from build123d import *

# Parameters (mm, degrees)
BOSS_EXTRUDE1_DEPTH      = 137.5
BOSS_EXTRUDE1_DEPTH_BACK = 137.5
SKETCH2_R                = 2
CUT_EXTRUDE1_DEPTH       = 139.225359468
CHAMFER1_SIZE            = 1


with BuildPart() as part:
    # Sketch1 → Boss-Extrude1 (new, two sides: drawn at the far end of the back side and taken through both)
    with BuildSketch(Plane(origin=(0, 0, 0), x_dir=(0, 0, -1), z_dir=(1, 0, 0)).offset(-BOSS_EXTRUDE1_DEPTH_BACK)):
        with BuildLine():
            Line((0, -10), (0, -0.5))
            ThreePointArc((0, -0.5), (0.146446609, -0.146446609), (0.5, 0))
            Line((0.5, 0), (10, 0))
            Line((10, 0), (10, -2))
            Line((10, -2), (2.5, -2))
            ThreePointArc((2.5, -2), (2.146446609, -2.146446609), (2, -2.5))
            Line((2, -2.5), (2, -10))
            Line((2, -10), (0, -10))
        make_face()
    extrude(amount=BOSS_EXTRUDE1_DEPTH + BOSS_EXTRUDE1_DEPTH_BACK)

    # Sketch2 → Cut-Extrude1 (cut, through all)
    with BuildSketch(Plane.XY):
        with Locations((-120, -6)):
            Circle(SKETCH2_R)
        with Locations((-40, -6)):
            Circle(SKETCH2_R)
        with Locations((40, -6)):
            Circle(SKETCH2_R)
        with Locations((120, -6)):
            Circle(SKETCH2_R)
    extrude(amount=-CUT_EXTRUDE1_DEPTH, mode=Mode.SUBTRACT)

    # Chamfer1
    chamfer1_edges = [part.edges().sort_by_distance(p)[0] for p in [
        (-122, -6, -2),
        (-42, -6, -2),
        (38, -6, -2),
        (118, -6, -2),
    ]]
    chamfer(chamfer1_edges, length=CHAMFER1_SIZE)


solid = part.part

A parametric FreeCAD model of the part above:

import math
import FreeCAD as App
import Part
import Sketcher

V = App.Vector


def edges_at(feature, points):
    """Names of the edges that pass closest to the given points."""
    edges = feature.Shape.Edges
    near = lambda p: min(range(len(edges)), key=lambda i: edges[i].distToShape(Part.Vertex(*p))[0])
    return sorted({f"Edge{near(p) + 1}" for p in points})

doc = App.newDocument("Part")
body = doc.addObject("PartDesign::Body", "Body")

# Sketch on YZ plane
sketch1 = doc.addObject("Sketcher::SketchObject", "Sketch")
body.addObject(sketch1)
sketch1.AttachmentSupport = (doc.YZ_Plane, [""])
sketch1.MapMode = "FlatFace"
sketch1.addGeometry(Part.LineSegment(V(-0.5, 0, 0), V(-10, 0, 0)), False)
sketch1.addGeometry(Part.LineSegment(V(-10, 0, 0), V(-10, -2, 0)), False)
sketch1.addGeometry(Part.LineSegment(V(-10, -2, 0), V(-2.5, -2, 0)), False)
sketch1.addGeometry(Part.ArcOfCircle(Part.Circle(V(-2.5, -2.5, 0), V(0, 0, 1), 0.5), math.radians(0), math.radians(90)), False)
sketch1.addGeometry(Part.LineSegment(V(-2, -2.5, 0), V(-2, -10, 0)), False)
sketch1.addGeometry(Part.LineSegment(V(-2, -10, 0), V(0, -10, 0)), False)
sketch1.addGeometry(Part.LineSegment(V(0, -10, 0), V(0, -0.5, 0)), False)
sketch1.addGeometry(Part.ArcOfCircle(Part.Circle(V(-0.5, -0.5, 0), V(0, 0, 1), 0.5), math.radians(0), math.radians(90)), False)
sketch1.addConstraint(Sketcher.Constraint("Coincident", 0, 2, 1, 1))
sketch1.addConstraint(Sketcher.Constraint("Coincident", 1, 2, 2, 1))
sketch1.addConstraint(Sketcher.Constraint("Tangent", 2, 2, 3, 2))
sketch1.addConstraint(Sketcher.Constraint("Tangent", 3, 1, 4, 1))
sketch1.addConstraint(Sketcher.Constraint("Coincident", 4, 2, 5, 1))
sketch1.addConstraint(Sketcher.Constraint("Coincident", 5, 2, 6, 1))
sketch1.addConstraint(Sketcher.Constraint("Tangent", 6, 2, 7, 1))
sketch1.addConstraint(Sketcher.Constraint("Tangent", 7, 2, 0, 1))
sketch1.addConstraint(Sketcher.Constraint("Horizontal", 0))
sketch1.addConstraint(Sketcher.Constraint("Vertical", 1))
sketch1.addConstraint(Sketcher.Constraint("Horizontal", 2))
sketch1.addConstraint(Sketcher.Constraint("Vertical", 4))
sketch1.addConstraint(Sketcher.Constraint("Horizontal", 5))
sketch1.addConstraint(Sketcher.Constraint("Vertical", 6))
sketch1.addConstraint(Sketcher.Constraint("Equal", 3, 7))
sketch1.addConstraint(Sketcher.Constraint("PointOnObject", 0, 2, -1))
sketch1.addConstraint(Sketcher.Constraint("PointOnObject", 5, 2, -2))
sketch1.addConstraint(Sketcher.Constraint("Equal", 5, 1))
sketch1.addConstraint(Sketcher.Constraint("Equal", 2, 4))
sketch1.addConstraint(Sketcher.Constraint("Radius", 3, 0.5))
sketch1.addConstraint(Sketcher.Constraint("DistanceX", 5, 1, 5, 2, 2.0))
sketch1.addConstraint(Sketcher.Constraint("DistanceX", 0, 2, 0, 1, 9.5))
pad1 = doc.addObject("PartDesign::Pad", "Pad")
body.addObject(pad1)
pad1.Profile = sketch1
pad1.Type = "TwoLengths"
pad1.Length = 137.5
pad1.Length2 = 137.5

# Sketch on XY plane
sketch2 = doc.addObject("Sketcher::SketchObject", "Sketch001")
body.addObject(sketch2)
sketch2.AttachmentSupport = (doc.XY_Plane, [""])
sketch2.MapMode = "FlatFace"
sketch2.addGeometry(Part.Circle(V(-120, -6, 0), V(0, 0, 1), 2), False)
sketch2.addGeometry(Part.Circle(V(-40, -6, 0), V(0, 0, 1), 2), False)
sketch2.addGeometry(Part.Circle(V(40, -6, 0), V(0, 0, 1), 2), False)
sketch2.addGeometry(Part.Circle(V(120, -6, 0), V(0, 0, 1), 2), False)
sketch2.addConstraint(Sketcher.Constraint("Equal", 0, 1))
sketch2.addConstraint(Sketcher.Constraint("Equal", 1, 2))
sketch2.addConstraint(Sketcher.Constraint("Equal", 2, 3))
sketch2.addConstraint(Sketcher.Constraint("Symmetric", 1, 3, 2, 3, -2))
sketch2.addConstraint(Sketcher.Constraint("Symmetric", 0, 3, 3, 3, -2))
sketch2.addConstraint(Sketcher.Constraint("Horizontal", 0, 3, 1, 3))
sketch2.addConstraint(Sketcher.Constraint("Diameter", 0, 4.0))
sketch2.addConstraint(Sketcher.Constraint("DistanceX", 0, 3, -1, 1, 120.0))
sketch2.addConstraint(Sketcher.Constraint("DistanceY", 0, 3, -1, 1, 6.0))
sketch2.addConstraint(Sketcher.Constraint("DistanceX", 1, 3, -1, 1, 40.0))
pocket1 = doc.addObject("PartDesign::Pocket", "Pocket")
body.addObject(pocket1)
pocket1.Profile = sketch2
pocket1.Type = "ThroughAll"
doc.recompute()

chamfer = doc.addObject("PartDesign::Chamfer", "Chamfer")
body.addObject(chamfer)
chamfer.Base = (pocket1, edges_at(pocket1, [
    (-122, -6, -2),
    (-42, -6, -2),
    (38, -6, -2),
    (118, -6, -2),
]))
chamfer.Size = 1

doc.recompute()
